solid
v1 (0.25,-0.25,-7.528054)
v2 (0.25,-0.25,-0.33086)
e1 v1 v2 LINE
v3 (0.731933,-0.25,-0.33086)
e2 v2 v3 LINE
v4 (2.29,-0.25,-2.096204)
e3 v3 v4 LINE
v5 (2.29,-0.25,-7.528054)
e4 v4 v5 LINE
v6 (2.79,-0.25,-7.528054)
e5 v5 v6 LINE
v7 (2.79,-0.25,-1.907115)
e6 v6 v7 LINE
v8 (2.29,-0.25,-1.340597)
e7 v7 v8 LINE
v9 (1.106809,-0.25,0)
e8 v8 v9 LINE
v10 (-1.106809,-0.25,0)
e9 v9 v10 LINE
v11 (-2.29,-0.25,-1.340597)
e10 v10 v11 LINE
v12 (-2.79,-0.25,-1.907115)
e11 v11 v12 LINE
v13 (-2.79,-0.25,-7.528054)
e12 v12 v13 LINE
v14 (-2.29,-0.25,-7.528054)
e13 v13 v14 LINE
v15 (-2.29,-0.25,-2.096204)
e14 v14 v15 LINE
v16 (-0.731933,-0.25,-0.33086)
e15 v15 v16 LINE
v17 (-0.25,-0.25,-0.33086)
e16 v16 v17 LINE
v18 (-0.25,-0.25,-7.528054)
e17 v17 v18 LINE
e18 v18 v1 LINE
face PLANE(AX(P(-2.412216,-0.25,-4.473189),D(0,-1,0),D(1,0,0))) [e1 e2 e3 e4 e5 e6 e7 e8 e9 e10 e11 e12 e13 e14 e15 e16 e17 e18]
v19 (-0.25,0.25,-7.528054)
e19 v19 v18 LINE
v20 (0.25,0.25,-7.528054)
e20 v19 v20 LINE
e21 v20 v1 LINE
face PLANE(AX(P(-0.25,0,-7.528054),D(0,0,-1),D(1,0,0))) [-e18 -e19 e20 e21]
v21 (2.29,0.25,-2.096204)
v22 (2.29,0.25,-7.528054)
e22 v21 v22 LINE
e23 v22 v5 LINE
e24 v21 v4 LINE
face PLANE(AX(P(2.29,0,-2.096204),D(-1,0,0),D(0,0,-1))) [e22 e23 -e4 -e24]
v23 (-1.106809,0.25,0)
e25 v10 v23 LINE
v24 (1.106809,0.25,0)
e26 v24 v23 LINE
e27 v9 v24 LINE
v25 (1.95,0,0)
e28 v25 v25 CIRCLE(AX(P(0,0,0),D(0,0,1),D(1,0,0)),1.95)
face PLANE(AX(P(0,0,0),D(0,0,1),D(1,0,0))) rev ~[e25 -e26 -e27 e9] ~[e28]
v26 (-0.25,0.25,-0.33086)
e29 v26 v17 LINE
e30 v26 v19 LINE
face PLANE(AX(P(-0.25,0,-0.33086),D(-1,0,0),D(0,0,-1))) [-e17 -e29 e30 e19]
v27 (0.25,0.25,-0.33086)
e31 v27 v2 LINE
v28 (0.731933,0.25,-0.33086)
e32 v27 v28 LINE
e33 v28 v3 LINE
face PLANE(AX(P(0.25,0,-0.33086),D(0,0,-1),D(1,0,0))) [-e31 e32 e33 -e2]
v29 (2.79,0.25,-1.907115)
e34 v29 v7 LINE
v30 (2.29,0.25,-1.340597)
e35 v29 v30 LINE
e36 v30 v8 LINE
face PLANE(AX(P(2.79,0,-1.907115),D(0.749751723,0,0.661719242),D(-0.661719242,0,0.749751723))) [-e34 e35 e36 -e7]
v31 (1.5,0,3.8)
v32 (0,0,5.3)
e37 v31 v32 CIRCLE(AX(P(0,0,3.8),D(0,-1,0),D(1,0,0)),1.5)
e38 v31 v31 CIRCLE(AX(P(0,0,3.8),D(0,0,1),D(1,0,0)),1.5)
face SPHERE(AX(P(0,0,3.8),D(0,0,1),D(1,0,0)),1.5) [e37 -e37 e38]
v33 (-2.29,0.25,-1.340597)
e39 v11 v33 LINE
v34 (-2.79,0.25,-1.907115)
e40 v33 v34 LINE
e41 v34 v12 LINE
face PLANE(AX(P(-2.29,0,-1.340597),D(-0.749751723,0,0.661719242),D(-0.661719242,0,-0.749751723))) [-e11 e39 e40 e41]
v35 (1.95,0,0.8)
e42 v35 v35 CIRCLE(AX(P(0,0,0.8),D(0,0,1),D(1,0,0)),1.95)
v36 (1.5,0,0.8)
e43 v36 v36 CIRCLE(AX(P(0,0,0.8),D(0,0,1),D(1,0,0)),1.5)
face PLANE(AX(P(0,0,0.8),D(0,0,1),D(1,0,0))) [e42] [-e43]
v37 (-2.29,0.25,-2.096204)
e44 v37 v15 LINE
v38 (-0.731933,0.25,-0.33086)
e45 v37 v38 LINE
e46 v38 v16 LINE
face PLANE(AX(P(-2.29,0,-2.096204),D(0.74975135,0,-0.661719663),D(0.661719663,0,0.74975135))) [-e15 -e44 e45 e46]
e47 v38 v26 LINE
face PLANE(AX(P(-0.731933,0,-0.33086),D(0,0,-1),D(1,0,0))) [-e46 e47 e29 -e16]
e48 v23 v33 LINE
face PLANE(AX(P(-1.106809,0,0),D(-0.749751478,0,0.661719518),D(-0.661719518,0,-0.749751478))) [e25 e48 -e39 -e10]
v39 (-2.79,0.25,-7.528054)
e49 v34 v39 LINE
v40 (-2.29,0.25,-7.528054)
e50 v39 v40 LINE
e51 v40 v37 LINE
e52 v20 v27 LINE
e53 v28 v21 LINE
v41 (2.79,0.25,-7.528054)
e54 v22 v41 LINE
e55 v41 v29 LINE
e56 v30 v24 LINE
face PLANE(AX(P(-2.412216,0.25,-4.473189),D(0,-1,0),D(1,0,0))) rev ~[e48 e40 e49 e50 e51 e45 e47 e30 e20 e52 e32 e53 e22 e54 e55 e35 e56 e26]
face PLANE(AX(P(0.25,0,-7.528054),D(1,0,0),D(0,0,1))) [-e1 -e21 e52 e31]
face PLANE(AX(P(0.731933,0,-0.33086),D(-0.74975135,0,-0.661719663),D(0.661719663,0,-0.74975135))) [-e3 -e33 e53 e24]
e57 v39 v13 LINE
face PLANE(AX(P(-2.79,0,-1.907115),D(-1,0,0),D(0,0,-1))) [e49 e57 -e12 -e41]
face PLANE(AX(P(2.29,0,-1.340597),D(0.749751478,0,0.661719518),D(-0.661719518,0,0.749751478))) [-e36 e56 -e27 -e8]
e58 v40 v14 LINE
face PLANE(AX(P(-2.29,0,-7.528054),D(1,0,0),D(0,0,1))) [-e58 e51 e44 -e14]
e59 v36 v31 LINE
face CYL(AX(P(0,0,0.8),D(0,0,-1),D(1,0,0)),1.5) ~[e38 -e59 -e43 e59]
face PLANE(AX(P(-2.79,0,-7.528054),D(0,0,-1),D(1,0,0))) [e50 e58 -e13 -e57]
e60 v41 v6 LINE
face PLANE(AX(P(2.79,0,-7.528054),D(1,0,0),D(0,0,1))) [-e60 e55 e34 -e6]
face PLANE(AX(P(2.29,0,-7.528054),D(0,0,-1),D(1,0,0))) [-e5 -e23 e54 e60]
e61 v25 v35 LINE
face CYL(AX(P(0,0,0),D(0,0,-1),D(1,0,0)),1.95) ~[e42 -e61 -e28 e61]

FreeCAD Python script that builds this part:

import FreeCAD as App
import Part
import Sketcher

V = App.Vector


def edges_at(feature, points):
    """Names of the edges that pass closest to the given points."""
    edges = feature.Shape.Edges
    near = lambda p: min(range(len(edges)), key=lambda i: edges[i].distToShape(Part.Vertex(*p))[0])
    return sorted({f"Edge{near(p) + 1}" for p in points})


def add_polygon(sketch, points):
    """Adds a closed chain of lines whose ends are joined by coincident constraints."""
    first, n = sketch.GeometryCount, len(points)
    for a, b in zip(points, points[1:] + points[:1]):
        sketch.addGeometry(Part.LineSegment(App.Vector(*a, 0), App.Vector(*b, 0)), False)
    for i in range(n):
        sketch.addConstraint(Sketcher.Constraint("Coincident", first + i, 2, first + (i + 1) % n, 1))

doc = App.newDocument("Part")
body = doc.addObject("PartDesign::Body", "Body")

# Sketch on XY plane
sketch1 = doc.addObject("Sketcher::SketchObject", "Sketch")
body.addObject(sketch1)
sketch1.AttachmentSupport = (doc.XY_Plane, [""])
sketch1.MapMode = "FlatFace"
sketch1.addGeometry(Part.Circle(V(0, 0, 0), V(0, 0, 1), 1.9), False)
sketch1.addConstraint(Sketcher.Constraint("Coincident", 0, 3, -1, 1))
sketch1.addConstraint(Sketcher.Constraint("Diameter", 0, 3.9))
pad1 = doc.addObject("PartDesign::Pad", "Pad")
body.addObject(pad1)
pad1.Profile = sketch1
pad1.Length = 0.8

# Sketch on XY plane
sketch2 = doc.addObject("Sketcher::SketchObject", "Sketch001")
body.addObject(sketch2)
sketch2.AttachmentSupport = (doc.XY_Plane, [""])
sketch2.MapMode = "FlatFace"
sketch2.AttachmentOffset = App.Placement(V(0, 0, 0.8), App.Rotation())
sketch2.addGeometry(Part.Circle(V(0, 0, 0), V(0, 0, 1), 1.5), False)
sketch2.addConstraint(Sketcher.Constraint("Coincident", 0, 3, -1, 1))
sketch2.addConstraint(Sketcher.Constraint("Diameter", 0, 3.0))
pad2 = doc.addObject("PartDesign::Pad", "Pad001")
body.addObject(pad2)
pad2.Profile = sketch2
pad2.Length = 4.5
doc.recompute()

fillet = doc.addObject("PartDesign::Fillet", "Fillet")
body.addObject(fillet)
fillet.Base = (pad2, edges_at(pad2, [(-1.5, 0, 5.3)]))
fillet.Radius = 1.5

# Sketch on XZ plane
sketch3 = doc.addObject("Sketcher::SketchObject", "Sketch002")
body.addObject(sketch3)
sketch3.AttachmentSupport = (doc.XZ_Plane, [""])
sketch3.MapMode = "FlatFace"
add_polygon(sketch3, [(-2.29, -1.34), (-2.79, -1.91), (-2.79, -7.53), (-2.29, -7.53), (-2.29, -2.1), (-0.73, -0.33), (-0.25, -0.33), (-0.25, -7.53), (0.25, -7.53), (0.25, -0.33), (0.73, -0.33), (2.29, -2.1), (2.29, -7.53), (2.79, -7.53), (2.79, -1.91), (2.29, -1.34), (1.11, 0), (-1.11, 0)])  # lines 0-17
sketch3.addConstraint(Sketcher.Constraint("Vertical", 1))
sketch3.addConstraint(Sketcher.Constraint("Horizontal", 2))
sketch3.addConstraint(Sketcher.Constraint("Vertical", 3))
sketch3.addConstraint(Sketcher.Constraint("Horizontal", 5))
sketch3.addConstraint(Sketcher.Constraint("Vertical", 6))
sketch3.addConstraint(Sketcher.Constraint("Horizontal", 7))
sketch3.addConstraint(Sketcher.Constraint("Vertical", 8))
sketch3.addConstraint(Sketcher.Constraint("Horizontal", 9))
sketch3.addConstraint(Sketcher.Constraint("Vertical", 11))
sketch3.addConstraint(Sketcher.Constraint("Horizontal", 12))
sketch3.addConstraint(Sketcher.Constraint("Vertical", 13))
sketch3.addConstraint(Sketcher.Constraint("Horizontal", 16))
sketch3.addConstraint(Sketcher.Constraint("Symmetric", 15, 2, 16, 2, -1, 1))
sketch3.addConstraint(Sketcher.Constraint("Symmetric", 5, 2, 8, 2, -2))
sketch3.addConstraint(Sketcher.Constraint("Symmetric", 3, 2, 10, 2, -2))
sketch3.addConstraint(Sketcher.Constraint("Symmetric", 1, 2, 12, 2, -2))
sketch3.addConstraint(Sketcher.Constraint("Symmetric", 14, 2, 17, 2, -2))
sketch3.addConstraint(Sketcher.Constraint("Parallel", 0, 4))
sketch3.addConstraint(Sketcher.Constraint("Parallel", 10, 14))
sketch3.addConstraint(Sketcher.Constraint("Parallel", 14, 15))
sketch3.addConstraint(Sketcher.Constraint("Parallel", 4, 17))
sketch3.addConstraint(Sketcher.Constraint("Horizontal", 2, 2, 6, 2))
sketch3.addConstraint(Sketcher.Constraint("Vertical", 11, 2, 14, 2))
sketch3.addConstraint(Sketcher.Constraint("Equal", 2, 7))
sketch3.addConstraint(Sketcher.Constraint("DistanceX", 2, 1, 2, 2, 0.5))
sketch3.addConstraint(Sketcher.Constraint("DistanceX", 0, 2, -1, 1, 2.79))
sketch3.addConstraint(Sketcher.Constraint("DistanceY", 1, 2, 1, 1, 5.620939))
sketch3.addConstraint(Sketcher.Constraint("DistanceY", 3, 1, 3, 2, 5.43185))
sketch3.addConstraint(Sketcher.Constraint("DistanceX", 5, 1, 5, 2, 0.481933))
sketch3.addConstraint(Sketcher.Constraint("DistanceX", 16, 2, 16, 1, 2.213618))
sketch3.addConstraint(Sketcher.Constraint("DistanceY", 6, 2, 6, 1, 7.197194))
pad3 = doc.addObject("PartDesign::Pad", "Pad002")
body.addObject(pad3)
pad3.Profile = sketch3
pad3.Type = "TwoLengths"
pad3.Length = 0.25
pad3.Length2 = 0.25

doc.recompute()
